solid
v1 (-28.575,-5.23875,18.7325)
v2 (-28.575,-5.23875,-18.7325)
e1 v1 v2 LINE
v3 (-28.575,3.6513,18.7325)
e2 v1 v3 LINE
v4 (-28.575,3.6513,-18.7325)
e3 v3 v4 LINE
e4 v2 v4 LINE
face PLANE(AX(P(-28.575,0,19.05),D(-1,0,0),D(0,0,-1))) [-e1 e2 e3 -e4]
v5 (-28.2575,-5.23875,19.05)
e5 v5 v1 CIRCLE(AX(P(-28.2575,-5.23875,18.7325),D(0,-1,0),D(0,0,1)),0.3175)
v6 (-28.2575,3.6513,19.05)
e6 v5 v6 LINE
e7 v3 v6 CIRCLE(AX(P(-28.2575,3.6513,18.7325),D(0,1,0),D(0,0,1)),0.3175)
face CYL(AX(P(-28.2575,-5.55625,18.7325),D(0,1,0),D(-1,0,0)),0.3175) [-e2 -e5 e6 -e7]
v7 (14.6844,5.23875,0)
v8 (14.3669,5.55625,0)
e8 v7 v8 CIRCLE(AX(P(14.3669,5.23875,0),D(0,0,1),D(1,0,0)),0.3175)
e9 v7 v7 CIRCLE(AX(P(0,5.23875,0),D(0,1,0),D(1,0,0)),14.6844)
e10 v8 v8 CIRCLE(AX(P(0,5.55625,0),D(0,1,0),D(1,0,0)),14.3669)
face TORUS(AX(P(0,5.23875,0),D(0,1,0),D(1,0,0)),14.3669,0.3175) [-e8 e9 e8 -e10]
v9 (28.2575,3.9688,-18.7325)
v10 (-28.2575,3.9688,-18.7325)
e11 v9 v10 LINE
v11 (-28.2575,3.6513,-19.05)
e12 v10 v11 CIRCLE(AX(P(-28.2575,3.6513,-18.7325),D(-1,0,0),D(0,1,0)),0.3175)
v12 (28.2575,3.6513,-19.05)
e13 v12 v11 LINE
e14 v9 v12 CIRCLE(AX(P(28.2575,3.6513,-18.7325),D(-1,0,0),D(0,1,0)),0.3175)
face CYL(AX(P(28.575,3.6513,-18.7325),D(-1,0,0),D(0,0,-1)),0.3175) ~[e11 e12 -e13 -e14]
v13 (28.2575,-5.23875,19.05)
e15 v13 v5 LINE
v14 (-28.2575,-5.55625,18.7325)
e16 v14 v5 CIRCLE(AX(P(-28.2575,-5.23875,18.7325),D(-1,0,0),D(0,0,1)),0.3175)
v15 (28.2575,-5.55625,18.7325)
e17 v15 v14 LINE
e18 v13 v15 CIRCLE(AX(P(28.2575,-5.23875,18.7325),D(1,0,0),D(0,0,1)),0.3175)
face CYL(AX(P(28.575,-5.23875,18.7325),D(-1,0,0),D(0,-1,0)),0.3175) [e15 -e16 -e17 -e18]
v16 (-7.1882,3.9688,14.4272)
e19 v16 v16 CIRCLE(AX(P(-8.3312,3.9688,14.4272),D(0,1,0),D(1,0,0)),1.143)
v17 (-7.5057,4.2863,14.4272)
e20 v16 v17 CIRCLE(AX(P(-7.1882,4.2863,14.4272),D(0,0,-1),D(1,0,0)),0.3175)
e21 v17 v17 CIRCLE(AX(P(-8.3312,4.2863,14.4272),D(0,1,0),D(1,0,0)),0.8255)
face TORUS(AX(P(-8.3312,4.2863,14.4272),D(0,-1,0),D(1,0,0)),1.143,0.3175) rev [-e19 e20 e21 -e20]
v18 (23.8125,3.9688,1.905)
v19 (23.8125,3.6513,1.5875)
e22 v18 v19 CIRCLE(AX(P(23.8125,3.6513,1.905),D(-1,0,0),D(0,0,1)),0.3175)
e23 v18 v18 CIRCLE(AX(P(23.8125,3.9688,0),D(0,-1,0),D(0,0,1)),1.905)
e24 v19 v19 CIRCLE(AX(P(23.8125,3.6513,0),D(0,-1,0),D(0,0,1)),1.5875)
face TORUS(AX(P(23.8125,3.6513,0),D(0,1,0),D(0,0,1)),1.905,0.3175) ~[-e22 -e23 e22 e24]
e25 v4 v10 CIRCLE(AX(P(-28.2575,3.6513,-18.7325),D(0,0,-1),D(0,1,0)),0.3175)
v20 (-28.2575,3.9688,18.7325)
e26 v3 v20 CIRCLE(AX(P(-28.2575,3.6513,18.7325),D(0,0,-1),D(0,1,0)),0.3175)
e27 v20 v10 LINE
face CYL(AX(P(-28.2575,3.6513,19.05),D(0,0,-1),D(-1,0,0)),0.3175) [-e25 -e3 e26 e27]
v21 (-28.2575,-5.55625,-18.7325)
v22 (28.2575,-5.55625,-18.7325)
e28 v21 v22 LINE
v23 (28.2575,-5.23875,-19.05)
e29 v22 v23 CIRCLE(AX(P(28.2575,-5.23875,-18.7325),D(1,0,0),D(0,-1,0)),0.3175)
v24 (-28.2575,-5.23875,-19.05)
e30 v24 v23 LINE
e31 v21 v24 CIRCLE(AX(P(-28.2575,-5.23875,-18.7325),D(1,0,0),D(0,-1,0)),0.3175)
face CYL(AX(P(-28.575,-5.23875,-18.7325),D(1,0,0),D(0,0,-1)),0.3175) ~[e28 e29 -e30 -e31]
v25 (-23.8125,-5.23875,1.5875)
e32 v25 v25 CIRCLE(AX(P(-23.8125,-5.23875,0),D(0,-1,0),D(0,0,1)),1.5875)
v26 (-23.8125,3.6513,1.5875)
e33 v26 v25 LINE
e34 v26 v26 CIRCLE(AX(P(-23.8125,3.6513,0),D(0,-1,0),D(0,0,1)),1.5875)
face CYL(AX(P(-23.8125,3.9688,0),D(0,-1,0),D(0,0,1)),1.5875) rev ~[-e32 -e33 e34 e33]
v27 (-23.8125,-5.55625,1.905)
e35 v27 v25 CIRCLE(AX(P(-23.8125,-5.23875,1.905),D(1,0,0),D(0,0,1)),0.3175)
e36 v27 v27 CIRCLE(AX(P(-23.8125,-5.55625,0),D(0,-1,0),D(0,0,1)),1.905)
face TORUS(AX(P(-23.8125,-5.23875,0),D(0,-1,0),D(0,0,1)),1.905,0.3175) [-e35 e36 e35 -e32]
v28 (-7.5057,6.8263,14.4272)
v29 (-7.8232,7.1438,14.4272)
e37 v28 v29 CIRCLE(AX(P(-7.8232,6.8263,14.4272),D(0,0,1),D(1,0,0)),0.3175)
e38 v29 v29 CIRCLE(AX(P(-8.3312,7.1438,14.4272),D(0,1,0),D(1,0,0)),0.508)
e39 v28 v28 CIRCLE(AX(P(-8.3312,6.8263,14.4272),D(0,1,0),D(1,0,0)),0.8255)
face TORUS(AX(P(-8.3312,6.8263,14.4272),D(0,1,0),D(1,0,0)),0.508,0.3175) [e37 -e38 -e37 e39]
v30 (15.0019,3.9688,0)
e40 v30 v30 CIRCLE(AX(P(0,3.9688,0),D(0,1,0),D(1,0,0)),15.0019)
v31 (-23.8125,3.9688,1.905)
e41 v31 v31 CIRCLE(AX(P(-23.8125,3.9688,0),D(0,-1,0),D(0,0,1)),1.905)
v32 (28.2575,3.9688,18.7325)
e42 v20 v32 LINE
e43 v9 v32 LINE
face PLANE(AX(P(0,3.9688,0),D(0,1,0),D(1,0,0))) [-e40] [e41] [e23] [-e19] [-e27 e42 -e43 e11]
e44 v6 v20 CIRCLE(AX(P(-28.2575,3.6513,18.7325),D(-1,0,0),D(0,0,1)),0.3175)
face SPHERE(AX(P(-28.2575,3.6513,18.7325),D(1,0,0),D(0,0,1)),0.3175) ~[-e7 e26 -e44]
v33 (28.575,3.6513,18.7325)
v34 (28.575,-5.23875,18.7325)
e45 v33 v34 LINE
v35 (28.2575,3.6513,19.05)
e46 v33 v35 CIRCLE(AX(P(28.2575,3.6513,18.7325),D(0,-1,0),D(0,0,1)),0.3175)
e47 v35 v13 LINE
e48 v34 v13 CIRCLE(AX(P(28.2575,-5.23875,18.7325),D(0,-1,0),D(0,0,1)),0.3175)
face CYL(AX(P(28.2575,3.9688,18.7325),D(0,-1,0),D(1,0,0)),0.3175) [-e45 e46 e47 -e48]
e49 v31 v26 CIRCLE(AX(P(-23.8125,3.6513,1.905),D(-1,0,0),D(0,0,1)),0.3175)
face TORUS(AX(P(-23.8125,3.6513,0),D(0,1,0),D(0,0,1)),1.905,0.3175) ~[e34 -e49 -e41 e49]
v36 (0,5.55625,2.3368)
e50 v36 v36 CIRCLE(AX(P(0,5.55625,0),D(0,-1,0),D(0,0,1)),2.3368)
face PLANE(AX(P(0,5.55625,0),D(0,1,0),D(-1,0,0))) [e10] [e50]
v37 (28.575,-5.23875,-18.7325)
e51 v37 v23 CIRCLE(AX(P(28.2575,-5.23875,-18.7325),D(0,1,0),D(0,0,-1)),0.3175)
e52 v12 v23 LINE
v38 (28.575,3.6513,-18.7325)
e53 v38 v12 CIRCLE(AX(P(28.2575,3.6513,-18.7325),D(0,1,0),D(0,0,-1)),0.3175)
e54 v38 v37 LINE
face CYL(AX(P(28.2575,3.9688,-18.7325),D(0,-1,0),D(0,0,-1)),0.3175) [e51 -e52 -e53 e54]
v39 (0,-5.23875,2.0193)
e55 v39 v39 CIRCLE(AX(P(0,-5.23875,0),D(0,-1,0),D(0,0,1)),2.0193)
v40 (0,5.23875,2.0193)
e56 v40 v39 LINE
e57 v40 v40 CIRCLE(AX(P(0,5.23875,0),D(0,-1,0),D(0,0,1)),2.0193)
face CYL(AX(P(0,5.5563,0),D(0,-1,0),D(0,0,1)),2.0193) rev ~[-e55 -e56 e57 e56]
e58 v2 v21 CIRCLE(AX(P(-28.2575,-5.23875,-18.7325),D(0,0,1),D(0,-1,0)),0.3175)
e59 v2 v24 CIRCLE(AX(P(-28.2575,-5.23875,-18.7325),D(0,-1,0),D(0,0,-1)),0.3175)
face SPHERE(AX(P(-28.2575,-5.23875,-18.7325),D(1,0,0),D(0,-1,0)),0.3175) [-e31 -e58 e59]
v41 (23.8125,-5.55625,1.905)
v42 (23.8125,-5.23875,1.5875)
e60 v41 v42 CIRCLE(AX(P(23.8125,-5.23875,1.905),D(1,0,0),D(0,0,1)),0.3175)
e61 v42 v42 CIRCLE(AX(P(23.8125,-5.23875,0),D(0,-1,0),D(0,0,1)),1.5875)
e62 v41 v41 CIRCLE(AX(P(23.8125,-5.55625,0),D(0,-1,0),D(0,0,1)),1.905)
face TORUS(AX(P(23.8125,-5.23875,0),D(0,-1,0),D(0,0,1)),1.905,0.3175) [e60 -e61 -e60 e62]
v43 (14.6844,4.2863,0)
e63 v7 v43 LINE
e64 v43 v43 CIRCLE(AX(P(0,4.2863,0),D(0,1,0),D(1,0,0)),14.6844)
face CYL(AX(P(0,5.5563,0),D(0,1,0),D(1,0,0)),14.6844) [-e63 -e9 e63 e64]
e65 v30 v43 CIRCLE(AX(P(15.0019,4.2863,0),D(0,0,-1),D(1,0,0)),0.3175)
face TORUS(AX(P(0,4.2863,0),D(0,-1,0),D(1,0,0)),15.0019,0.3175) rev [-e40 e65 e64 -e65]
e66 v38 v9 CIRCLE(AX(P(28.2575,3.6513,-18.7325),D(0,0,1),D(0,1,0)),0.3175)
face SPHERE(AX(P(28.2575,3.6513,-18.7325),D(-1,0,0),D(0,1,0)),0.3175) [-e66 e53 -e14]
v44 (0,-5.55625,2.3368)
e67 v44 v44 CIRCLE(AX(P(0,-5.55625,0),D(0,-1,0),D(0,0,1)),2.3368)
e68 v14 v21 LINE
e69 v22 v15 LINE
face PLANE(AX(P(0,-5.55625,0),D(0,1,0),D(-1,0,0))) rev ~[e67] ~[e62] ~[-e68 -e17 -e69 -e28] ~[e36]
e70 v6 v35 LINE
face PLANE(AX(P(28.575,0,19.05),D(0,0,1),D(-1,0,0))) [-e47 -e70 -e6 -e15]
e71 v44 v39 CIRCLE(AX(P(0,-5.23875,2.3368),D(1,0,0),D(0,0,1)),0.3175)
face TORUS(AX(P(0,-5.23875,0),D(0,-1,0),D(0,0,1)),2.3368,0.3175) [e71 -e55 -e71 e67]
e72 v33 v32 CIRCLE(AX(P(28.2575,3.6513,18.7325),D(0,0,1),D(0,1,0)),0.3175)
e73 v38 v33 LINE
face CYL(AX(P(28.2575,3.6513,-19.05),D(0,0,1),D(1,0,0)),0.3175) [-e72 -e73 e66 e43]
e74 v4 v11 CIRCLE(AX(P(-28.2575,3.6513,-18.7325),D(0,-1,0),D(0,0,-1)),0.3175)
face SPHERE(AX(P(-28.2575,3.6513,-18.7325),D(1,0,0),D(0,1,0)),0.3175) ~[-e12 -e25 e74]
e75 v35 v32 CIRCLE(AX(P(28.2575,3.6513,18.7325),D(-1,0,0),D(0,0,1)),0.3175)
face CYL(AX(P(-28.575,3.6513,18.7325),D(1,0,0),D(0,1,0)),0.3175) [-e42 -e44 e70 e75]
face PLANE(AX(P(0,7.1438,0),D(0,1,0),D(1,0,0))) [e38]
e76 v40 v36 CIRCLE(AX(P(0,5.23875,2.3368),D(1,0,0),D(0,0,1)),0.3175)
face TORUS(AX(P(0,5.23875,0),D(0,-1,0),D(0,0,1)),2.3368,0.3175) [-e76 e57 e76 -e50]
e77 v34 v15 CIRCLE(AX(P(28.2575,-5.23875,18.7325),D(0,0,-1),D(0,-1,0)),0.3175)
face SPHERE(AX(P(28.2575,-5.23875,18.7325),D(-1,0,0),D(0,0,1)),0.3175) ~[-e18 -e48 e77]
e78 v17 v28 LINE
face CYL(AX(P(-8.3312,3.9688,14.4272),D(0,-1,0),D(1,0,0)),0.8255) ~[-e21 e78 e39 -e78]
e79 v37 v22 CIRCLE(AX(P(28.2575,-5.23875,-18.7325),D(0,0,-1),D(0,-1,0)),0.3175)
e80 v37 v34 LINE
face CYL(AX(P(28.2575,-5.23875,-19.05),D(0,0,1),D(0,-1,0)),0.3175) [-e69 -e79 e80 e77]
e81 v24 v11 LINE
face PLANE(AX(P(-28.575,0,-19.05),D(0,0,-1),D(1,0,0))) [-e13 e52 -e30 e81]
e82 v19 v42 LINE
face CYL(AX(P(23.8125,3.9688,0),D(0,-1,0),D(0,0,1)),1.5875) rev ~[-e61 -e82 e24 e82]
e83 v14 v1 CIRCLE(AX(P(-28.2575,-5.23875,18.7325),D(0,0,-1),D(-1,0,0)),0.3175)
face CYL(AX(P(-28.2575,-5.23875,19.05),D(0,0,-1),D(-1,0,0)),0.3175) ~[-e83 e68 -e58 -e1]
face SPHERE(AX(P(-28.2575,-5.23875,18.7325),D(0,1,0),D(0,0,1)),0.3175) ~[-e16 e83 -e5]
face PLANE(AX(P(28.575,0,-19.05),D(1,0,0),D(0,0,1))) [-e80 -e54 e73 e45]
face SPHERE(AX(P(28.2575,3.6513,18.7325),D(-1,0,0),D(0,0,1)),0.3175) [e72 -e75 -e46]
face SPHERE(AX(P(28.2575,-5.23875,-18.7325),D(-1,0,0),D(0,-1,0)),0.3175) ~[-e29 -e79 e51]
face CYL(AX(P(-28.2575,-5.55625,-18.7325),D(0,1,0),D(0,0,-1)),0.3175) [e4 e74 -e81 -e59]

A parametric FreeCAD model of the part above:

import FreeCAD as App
import Part
import Sketcher
from FreeCAD import Vector
Q = App.Units.Quantity


def add_polygon(sketch, points):
    """Adds a closed chain of lines whose ends are joined by coincident constraints."""
    first, n = sketch.GeometryCount, len(points)
    for a, b in zip(points, points[1:] + points[:1]):
        sketch.addGeometry(Part.LineSegment(App.Vector(*a, 0), App.Vector(*b, 0)), False)
    for i in range(n):
        sketch.addConstraint(Sketcher.Constraint("Coincident", first + i, 2, first + (i + 1) % n, 1))

doc = App.newDocument("Part")
body = doc.addObject("PartDesign::Body", "Body")

# Sketch on XZ plane
sketch1 = body.newObject("Sketcher::SketchObject", "Sketch")
sketch1.AttachmentSupport = (doc.getObject("XZ_Plane"), [""])
sketch1.MapMode = "FlatFace"
add_polygon(sketch1, [(29, -19), (-29, -19), (-29, 19), (29, 19)])  # lines 0-3
sketch1.addConstraint([
    Sketcher.Constraint("Horizontal", 0),
    Sketcher.Constraint("Vertical", 1),
    Sketcher.Constraint("Horizontal", 2),
    Sketcher.Constraint("Vertical", 3),
    Sketcher.Constraint("Symmetric", 0, 2, 2, 2, -1, 1),
    Sketcher.Constraint("DistanceY", 1, 1, 1, 2, Q("1.5 in")),
    Sketcher.Constraint("DistanceX", 0, 2, 0, 1, Q("2.25 in")),
])
pad1 = body.newObject("PartDesign::Pad", "Pad")
pad1.Profile = sketch1
pad1.Length = Q("0.4375 in")
pad1.Midplane = True

# Sketch on XZ plane
sketch2 = body.newObject("Sketcher::SketchObject", "Sketch001")
sketch2.AttachmentSupport = (doc.getObject("XZ_Plane"), [""])
sketch2.MapMode = "FlatFace"
sketch2.AttachmentOffset = App.Placement(Vector(0, 0, -0.218752 * 25.4), App.Rotation())
add_polygon(sketch2, [(29, 19), (29, -19), (-29, -19), (-29, 19)])  # lines 0-3
sketch2.addGeometry(Part.Circle(Vector(0, 0, 0), Vector(0, 0, 1), 15), False)  # 4
sketch2.addConstraint([
    Sketcher.Constraint("Vertical", 0),
    Sketcher.Constraint("Horizontal", 1),
    Sketcher.Constraint("Vertical", 2),
    Sketcher.Constraint("Horizontal", 3),
    Sketcher.Constraint("Coincident", 4, 3, -1, 1),
    Sketcher.Constraint("Symmetric", 0, 2, 2, 2, -1, 1),
    Sketcher.Constraint("Diameter", 4, Q("1.156252 in")),
    Sketcher.Constraint("DistanceY", 0, 2, 0, 1, Q("1.5 in")),
    Sketcher.Constraint("DistanceX", 1, 2, 1, 1, Q("2.25 in")),
])
pocket1 = body.newObject("PartDesign::Pocket", "Pocket")
pocket1.Profile = sketch2
pocket1.Length = Q("0.0625 in")
pocket1.Reversed = True

# Sketch on XZ plane
sketch3 = body.newObject("Sketcher::SketchObject", "Sketch002")
sketch3.AttachmentSupport = (doc.getObject("XZ_Plane"), [""])
sketch3.MapMode = "FlatFace"
sketch3.AttachmentOffset = App.Placement(Vector(0, 0, -0.156252 * 25.4), App.Rotation())
sketch3.addGeometry([
    Part.Circle(Vector(-23.8, 0, 0), Vector(0, 0, 1), 1.6),
    Part.Circle(Vector(23.8, 0, 0), Vector(0, 0, 1), 1.6),
], False)
sketch3.addConstraint([
    Sketcher.Constraint("Equal", 0, 1),
    Sketcher.Constraint("Symmetric", 0, 3, 1, 3, -1, 1),
    Sketcher.Constraint("PointOnObject", 0, 3, -1),
    Sketcher.Constraint("Diameter", 0, Q("0.125 in")),
    Sketcher.Constraint("DistanceX", 0, 3, -1, 1, Q("0.9375 in")),
])
doc.recompute()
hole = body.newObject("PartDesign::Hole", "Hole")
hole.Profile = sketch3
hole.ThreadType = "None"
hole.Diameter = Q("0.125 in")
hole.DepthType = "Dimension"
hole.Depth = Q("1 in")
hole.DrillPoint = "Angled"
hole.DrillPointAngle = 118
hole.Reversed = True

# Sketch on XZ plane
sketch4 = body.newObject("Sketcher::SketchObject", "Sketch003")
sketch4.AttachmentSupport = (doc.getObject("XZ_Plane"), [""])
sketch4.MapMode = "FlatFace"
sketch4.AttachmentOffset = App.Placement(Vector(0, 0, -0.218752 * 25.4), App.Rotation())
sketch4.addGeometry(Part.Circle(Vector(0, 0, 0), Vector(0, 0, 1), 2), False)
sketch4.addConstraint([
    Sketcher.Constraint("Coincident", 0, 3, -1, 1),
    Sketcher.Constraint("Diameter", 0, Q("0.159 in")),
])
doc.recompute()
hole2 = body.newObject("PartDesign::Hole", "Hole001")
hole2.Profile = sketch4
hole2.ThreadType = "None"
hole2.Diameter = Q("0.159 in")
hole2.DepthType = "Dimension"
hole2.Depth = Q("1 in")
hole2.DrillPoint = "Angled"
hole2.DrillPointAngle = 118
hole2.Reversed = True

# Sketch on XZ plane
sketch5 = body.newObject("Sketcher::SketchObject", "Sketch004")
sketch5.AttachmentSupport = (doc.getObject("XZ_Plane"), [""])
sketch5.MapMode = "FlatFace"
sketch5.AttachmentOffset = App.Placement(Vector(0, 0, -0.156252 * 25.4), App.Rotation())
sketch5.addGeometry(Part.Circle(Vector(-8.3, 14.4, 0), Vector(0, 0, 1), 0.8), False)
sketch5.addConstraint([
    Sketcher.Constraint("Diameter", 0, Q("0.065 in")),
    Sketcher.Constraint("DistanceX", 0, 3, -1, 1, Q("0.328 in")),
    Sketcher.Constraint("DistanceY", -1, 1, 0, 3, Q("0.568 in")),
])
pad2 = body.newObject("PartDesign::Pad", "Pad001")
pad2.Profile = sketch5
pad2.Length = Q("0.125 in")
pad2.Reversed = True
doc.recompute()

fillet = body.newObject("PartDesign::Fillet", "Fillet")
fillet.Base = (pad2, ["Edge1"])
fillet.UseAllEdges = True
fillet.Radius = Q("0.0125 in")

doc.recompute()
